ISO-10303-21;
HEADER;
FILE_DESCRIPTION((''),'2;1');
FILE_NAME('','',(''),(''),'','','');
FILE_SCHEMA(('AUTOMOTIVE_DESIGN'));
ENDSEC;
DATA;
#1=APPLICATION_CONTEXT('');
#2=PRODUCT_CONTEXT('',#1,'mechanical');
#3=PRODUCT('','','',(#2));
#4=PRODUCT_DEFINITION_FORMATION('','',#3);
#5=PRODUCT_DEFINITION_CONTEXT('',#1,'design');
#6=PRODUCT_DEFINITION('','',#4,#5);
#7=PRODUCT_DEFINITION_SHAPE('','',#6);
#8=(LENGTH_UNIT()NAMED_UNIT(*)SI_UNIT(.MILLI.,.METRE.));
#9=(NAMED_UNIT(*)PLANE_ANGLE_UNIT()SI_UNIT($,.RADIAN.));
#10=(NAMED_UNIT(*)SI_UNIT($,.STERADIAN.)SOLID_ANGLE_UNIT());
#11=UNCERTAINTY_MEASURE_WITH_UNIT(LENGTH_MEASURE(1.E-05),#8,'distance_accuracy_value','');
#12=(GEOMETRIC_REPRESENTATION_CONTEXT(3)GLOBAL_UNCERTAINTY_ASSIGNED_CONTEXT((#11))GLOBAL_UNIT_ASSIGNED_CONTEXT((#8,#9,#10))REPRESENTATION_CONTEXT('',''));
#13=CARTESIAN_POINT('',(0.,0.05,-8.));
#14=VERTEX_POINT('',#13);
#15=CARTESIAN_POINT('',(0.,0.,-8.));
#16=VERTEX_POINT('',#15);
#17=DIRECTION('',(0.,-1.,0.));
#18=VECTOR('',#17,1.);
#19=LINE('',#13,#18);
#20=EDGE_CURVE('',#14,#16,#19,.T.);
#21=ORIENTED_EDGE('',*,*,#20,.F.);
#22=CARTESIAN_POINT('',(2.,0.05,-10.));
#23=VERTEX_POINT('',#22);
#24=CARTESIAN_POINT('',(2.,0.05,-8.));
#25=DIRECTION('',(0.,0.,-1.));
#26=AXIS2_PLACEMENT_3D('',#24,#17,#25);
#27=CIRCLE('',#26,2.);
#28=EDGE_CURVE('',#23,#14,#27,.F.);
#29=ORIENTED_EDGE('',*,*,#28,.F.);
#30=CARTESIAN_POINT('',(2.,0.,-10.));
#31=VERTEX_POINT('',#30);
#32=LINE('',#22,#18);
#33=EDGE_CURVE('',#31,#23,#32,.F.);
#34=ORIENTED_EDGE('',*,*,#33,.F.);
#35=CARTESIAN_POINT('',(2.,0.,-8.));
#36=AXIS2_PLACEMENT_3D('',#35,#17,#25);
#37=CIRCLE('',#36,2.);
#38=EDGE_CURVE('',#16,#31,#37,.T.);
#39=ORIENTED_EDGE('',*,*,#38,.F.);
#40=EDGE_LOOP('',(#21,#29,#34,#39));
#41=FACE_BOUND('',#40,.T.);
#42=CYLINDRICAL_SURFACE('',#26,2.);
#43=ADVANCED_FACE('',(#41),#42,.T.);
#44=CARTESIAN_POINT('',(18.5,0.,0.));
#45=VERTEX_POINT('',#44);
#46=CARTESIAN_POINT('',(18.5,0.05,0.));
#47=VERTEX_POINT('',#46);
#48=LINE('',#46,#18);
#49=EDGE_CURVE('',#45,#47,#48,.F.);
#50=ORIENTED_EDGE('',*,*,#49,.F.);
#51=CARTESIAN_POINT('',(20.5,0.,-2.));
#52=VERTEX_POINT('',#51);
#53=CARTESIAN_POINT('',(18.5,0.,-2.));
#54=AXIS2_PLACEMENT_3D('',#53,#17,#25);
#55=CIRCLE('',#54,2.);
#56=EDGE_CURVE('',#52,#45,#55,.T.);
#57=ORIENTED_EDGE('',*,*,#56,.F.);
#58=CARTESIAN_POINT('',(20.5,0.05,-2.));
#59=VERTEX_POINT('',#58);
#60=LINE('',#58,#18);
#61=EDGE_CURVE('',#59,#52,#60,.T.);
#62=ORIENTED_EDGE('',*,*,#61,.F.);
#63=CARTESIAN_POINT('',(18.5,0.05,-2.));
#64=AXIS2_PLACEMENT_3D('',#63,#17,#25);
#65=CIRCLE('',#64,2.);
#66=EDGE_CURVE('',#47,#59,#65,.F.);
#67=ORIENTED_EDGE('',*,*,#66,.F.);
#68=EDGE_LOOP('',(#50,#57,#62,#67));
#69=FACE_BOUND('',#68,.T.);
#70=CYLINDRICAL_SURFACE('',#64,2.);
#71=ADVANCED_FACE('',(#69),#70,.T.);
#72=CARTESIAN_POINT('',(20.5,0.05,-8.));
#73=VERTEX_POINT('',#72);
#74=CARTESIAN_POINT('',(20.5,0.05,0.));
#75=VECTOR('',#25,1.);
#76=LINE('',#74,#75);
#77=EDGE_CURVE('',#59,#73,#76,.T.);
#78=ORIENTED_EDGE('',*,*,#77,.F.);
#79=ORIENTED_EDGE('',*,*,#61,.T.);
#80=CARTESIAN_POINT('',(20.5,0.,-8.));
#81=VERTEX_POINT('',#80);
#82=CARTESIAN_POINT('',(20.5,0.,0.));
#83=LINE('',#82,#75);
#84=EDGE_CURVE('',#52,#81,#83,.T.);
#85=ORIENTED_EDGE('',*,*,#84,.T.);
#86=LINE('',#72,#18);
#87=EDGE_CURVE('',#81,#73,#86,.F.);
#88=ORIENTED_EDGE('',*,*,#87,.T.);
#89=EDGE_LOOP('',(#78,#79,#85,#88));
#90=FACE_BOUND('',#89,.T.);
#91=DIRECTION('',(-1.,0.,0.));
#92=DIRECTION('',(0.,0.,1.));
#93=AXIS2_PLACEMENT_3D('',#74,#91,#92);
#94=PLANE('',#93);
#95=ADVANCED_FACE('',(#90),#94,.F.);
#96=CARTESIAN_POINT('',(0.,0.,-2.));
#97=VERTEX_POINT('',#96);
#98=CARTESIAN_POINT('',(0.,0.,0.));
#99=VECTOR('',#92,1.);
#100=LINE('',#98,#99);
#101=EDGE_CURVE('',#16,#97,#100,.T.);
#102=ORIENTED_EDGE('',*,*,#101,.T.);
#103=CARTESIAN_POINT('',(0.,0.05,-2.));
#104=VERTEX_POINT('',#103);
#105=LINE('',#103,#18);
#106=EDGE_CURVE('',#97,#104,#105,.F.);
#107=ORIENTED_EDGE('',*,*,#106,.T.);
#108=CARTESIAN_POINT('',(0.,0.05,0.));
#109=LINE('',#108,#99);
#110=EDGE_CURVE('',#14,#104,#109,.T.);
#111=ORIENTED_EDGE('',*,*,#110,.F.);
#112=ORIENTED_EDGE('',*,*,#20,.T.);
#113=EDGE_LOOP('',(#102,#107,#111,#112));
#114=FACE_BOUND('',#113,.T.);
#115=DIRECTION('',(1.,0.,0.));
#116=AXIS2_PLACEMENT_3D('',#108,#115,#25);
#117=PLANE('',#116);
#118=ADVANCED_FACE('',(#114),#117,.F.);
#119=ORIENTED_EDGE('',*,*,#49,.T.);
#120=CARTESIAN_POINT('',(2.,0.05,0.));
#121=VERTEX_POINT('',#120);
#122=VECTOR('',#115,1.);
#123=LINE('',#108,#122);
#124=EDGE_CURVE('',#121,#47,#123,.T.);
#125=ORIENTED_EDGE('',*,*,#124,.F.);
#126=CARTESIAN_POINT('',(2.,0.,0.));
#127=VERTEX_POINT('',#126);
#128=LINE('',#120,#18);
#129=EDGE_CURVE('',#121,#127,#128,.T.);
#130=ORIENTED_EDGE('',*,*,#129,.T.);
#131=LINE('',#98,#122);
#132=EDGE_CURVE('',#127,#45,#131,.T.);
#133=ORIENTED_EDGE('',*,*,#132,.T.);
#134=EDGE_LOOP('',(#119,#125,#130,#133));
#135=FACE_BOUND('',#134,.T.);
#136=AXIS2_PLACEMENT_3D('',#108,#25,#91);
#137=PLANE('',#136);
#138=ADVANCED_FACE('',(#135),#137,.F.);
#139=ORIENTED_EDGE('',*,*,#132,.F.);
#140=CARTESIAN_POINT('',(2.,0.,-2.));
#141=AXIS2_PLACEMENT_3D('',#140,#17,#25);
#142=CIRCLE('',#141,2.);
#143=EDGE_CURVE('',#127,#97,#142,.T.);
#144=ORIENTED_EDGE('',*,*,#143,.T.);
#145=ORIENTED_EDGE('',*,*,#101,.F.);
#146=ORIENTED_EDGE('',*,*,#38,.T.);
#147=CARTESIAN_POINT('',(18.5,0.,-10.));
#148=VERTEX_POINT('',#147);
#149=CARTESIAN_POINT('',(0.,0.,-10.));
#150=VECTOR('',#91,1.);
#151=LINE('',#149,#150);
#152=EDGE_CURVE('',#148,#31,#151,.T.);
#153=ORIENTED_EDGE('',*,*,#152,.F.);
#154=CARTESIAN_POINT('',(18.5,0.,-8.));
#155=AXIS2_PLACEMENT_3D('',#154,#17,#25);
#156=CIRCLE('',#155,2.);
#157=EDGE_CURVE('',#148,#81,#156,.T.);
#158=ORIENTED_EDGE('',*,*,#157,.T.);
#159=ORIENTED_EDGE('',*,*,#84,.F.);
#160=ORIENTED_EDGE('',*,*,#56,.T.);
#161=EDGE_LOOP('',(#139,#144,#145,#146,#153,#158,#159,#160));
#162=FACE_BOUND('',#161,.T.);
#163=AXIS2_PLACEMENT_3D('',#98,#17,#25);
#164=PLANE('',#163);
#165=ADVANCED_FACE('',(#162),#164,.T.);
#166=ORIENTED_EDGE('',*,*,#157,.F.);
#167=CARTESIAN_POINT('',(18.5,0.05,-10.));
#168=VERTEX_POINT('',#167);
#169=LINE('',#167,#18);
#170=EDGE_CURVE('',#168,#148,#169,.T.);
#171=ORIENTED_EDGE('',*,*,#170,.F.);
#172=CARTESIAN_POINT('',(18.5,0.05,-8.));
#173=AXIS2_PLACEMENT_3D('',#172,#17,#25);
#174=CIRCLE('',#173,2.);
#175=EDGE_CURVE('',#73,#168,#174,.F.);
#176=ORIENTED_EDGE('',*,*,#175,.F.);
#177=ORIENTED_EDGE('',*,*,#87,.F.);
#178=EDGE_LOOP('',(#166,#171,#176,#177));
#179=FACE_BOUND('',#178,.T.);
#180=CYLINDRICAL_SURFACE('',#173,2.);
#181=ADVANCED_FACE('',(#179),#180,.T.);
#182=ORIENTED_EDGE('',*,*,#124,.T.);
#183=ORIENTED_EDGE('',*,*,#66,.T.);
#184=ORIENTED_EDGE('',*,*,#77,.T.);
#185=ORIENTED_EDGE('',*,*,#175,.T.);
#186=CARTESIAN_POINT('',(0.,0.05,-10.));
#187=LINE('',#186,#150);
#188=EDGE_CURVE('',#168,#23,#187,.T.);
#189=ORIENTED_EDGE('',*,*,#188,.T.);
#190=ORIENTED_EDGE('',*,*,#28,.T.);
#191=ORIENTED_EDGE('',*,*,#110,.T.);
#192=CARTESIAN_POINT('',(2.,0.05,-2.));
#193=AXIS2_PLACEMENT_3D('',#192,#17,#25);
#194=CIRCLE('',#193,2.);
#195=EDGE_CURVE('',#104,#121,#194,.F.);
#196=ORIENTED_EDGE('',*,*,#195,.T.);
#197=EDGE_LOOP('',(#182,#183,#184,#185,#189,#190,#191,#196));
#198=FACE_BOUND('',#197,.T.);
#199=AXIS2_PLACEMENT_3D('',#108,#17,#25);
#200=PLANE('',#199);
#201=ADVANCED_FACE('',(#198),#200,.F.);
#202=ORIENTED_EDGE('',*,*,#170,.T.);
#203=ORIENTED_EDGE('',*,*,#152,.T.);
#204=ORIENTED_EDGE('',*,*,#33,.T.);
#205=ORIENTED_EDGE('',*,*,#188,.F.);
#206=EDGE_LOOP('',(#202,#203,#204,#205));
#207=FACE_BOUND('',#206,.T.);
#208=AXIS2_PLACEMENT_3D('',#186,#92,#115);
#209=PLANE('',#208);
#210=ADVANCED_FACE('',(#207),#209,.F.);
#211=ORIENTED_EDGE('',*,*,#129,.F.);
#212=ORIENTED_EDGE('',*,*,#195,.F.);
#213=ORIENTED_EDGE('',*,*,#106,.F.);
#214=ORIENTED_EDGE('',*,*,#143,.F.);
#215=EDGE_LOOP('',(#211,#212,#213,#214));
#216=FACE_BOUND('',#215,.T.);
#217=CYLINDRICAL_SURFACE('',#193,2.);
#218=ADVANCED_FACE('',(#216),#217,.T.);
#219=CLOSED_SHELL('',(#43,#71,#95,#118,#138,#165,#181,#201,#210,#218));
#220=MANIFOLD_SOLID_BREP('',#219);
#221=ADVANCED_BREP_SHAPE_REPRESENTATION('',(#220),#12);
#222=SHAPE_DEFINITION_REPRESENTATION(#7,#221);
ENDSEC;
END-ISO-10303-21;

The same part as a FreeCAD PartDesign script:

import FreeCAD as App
import Part
import Sketcher

V = App.Vector


def edges_at(feature, points):
    """Names of the edges that pass closest to the given points."""
    edges = feature.Shape.Edges
    near = lambda p: min(range(len(edges)), key=lambda i: edges[i].distToShape(Part.Vertex(*p))[0])
    return sorted({f"Edge{near(p) + 1}" for p in points})


def add_polygon(sketch, points):
    """Adds a closed chain of lines whose ends are joined by coincident constraints."""
    first, n = sketch.GeometryCount, len(points)
    for a, b in zip(points, points[1:] + points[:1]):
        sketch.addGeometry(Part.LineSegment(App.Vector(*a, 0), App.Vector(*b, 0)), False)
    for i in range(n):
        sketch.addConstraint(Sketcher.Constraint("Coincident", first + i, 2, first + (i + 1) % n, 1))

doc = App.newDocument("Part")
body = doc.addObject("PartDesign::Body", "Body")

# Sketch on XZ plane
sketch1 = body.newObject("Sketcher::SketchObject", "Sketch")
sketch1.AttachmentSupport = (doc.getObject("XZ_Plane"), [""])
sketch1.MapMode = "FlatFace"
add_polygon(sketch1, [(0, -10), (0, 0), (20, 0), (20, -10)])  # lines 0-3
sketch1.addConstraint([
    Sketcher.Constraint("Vertical", 0),
    Sketcher.Constraint("Horizontal", 1),
    Sketcher.Constraint("Vertical", 2),
    Sketcher.Constraint("Horizontal", 3),
    Sketcher.Constraint("Coincident", 0, 2, -1, 1),
    Sketcher.Constraint("DistanceY", 0, 1, 0, 2, 10.0),
    Sketcher.Constraint("DistanceX", 1, 1, 1, 2, 20.5),
])
pad1 = body.newObject("PartDesign::Pad", "Pad")
pad1.Profile = sketch1
pad1.Length = 0.05
pad1.Reversed = True
doc.recompute()

fillet = body.newObject("PartDesign::Fillet", "Fillet")
fillet.Base = (pad1, edges_at(pad1, [
    (0, 0.025, -10),
    (20.5, 0.025, -10),
    (20.5, 0.025, 0),
    (0, 0.025, 0),
]))
fillet.Radius = 2

doc.recompute()
